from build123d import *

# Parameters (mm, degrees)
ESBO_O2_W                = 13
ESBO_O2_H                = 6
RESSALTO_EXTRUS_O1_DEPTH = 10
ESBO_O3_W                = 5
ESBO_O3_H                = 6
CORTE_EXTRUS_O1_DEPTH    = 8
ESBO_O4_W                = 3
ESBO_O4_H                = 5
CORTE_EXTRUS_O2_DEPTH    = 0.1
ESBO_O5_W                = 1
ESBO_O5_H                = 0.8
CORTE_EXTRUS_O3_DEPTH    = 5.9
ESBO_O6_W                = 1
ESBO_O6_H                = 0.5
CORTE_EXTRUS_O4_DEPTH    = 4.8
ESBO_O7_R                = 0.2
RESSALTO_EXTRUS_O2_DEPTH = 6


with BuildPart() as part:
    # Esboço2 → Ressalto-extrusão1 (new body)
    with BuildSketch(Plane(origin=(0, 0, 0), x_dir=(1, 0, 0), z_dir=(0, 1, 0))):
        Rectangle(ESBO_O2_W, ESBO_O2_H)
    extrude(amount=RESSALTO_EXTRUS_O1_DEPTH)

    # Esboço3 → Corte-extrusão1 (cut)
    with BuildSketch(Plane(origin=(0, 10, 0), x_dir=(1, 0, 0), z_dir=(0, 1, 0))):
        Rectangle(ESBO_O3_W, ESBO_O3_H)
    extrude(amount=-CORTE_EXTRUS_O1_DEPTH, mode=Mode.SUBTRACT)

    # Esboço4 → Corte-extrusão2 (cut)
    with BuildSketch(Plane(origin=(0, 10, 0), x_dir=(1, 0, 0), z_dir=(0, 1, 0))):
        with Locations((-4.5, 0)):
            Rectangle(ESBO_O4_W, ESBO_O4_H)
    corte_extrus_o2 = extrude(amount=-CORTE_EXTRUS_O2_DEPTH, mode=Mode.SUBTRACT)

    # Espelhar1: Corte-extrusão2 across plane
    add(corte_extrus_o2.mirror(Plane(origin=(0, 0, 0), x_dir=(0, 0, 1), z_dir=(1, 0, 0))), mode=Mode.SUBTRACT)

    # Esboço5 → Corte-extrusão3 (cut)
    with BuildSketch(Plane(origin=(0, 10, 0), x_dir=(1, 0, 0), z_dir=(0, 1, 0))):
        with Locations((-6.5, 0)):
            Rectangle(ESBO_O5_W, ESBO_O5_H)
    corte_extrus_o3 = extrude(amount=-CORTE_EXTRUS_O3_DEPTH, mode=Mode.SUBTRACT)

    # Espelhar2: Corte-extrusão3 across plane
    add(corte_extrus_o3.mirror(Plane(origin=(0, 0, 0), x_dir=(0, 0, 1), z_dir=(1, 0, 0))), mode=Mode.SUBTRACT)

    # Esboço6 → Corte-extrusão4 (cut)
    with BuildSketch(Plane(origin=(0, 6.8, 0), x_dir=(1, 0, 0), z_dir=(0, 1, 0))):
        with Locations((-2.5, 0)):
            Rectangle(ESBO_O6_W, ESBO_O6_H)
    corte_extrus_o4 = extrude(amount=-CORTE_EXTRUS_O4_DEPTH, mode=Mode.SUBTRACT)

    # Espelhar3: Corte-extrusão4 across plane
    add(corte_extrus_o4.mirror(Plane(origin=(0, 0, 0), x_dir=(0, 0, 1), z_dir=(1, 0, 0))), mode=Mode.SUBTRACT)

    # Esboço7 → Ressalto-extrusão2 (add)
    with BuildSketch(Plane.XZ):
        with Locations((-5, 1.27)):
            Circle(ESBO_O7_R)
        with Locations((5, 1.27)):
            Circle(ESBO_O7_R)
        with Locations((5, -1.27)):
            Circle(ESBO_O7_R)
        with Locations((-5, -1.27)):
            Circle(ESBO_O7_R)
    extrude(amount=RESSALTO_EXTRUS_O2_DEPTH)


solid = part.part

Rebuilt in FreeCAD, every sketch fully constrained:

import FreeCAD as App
import Part
import Sketcher
from FreeCAD import Vector
Q = App.Units.Quantity

doc = App.newDocument("Part")
body = doc.addObject("PartDesign::Body", "Body")

sketch1 = body.newObject("Sketcher::SketchObject", "Sketch")
sketch1.AttachmentSupport = (doc.getObject("XZ_Plane"), [""])
sketch1.MapMode = "FlatFace"
sketch1.addGeometry(Part.LineSegment(Vector(-6, -3, 0), Vector(-6, 3, 0)), False)
sketch1.addGeometry(Part.LineSegment(Vector(-6, 3, 0), Vector(6, 3, 0)), False)
sketch1.addGeometry(Part.LineSegment(Vector(6, 3, 0), Vector(6, -3, 0)), False)
sketch1.addGeometry(Part.LineSegment(Vector(6, -3, 0), Vector(-6, -3, 0)), False)
sketch1.addConstraint(Sketcher.Constraint("Coincident", 0, 2, 1, 1))
sketch1.addConstraint(Sketcher.Constraint("Coincident", 1, 2, 2, 1))
sketch1.addConstraint(Sketcher.Constraint("Coincident", 2, 2, 3, 1))
sketch1.addConstraint(Sketcher.Constraint("Coincident", 3, 2, 0, 1))
sketch1.addConstraint(Sketcher.Constraint("Vertical", 0))
sketch1.addConstraint(Sketcher.Constraint("Horizontal", 1))
sketch1.addConstraint(Sketcher.Constraint("Vertical", 2))
sketch1.addConstraint(Sketcher.Constraint("Horizontal", 3))
sketch1.addConstraint(Sketcher.Constraint("Symmetric", 0, 2, 2, 2, -1, 1))
sketch1.addConstraint(Sketcher.Constraint("DistanceX", 1, 1, 1, 2, Q("13 mm")))
sketch1.addConstraint(Sketcher.Constraint("DistanceY", 0, 1, 0, 2, Q("6 mm")))
pad1 = body.newObject("PartDesign::Pad", "Pad")
pad1.Profile = sketch1
pad1.Length = 10
pad1.Reversed = True

sketch2 = body.newObject("Sketcher::SketchObject", "Sketch001")
sketch2.AttachmentSupport = (doc.getObject("XZ_Plane"), [""])
sketch2.MapMode = "FlatFace"
sketch2.AttachmentOffset = App.Placement(Vector(0, 0, -10), App.Rotation())
sketch2.addGeometry(Part.LineSegment(Vector(-2, -3, 0), Vector(-2, 3, 0)), False)
sketch2.addGeometry(Part.LineSegment(Vector(-2, 3, 0), Vector(2, 3, 0)), False)
sketch2.addGeometry(Part.LineSegment(Vector(2, 3, 0), Vector(2, -3, 0)), False)
sketch2.addGeometry(Part.LineSegment(Vector(2, -3, 0), Vector(-2, -3, 0)), False)
sketch2.addConstraint(Sketcher.Constraint("Coincident", 0, 2, 1, 1))
sketch2.addConstraint(Sketcher.Constraint("Coincident", 1, 2, 2, 1))
sketch2.addConstraint(Sketcher.Constraint("Coincident", 2, 2, 3, 1))
sketch2.addConstraint(Sketcher.Constraint("Coincident", 3, 2, 0, 1))
sketch2.addConstraint(Sketcher.Constraint("Vertical", 0))
sketch2.addConstraint(Sketcher.Constraint("Horizontal", 1))
sketch2.addConstraint(Sketcher.Constraint("Vertical", 2))
sketch2.addConstraint(Sketcher.Constraint("Horizontal", 3))
sketch2.addConstraint(Sketcher.Constraint("Symmetric", 0, 2, 2, 2, -1, 1))
sketch2.addConstraint(Sketcher.Constraint("DistanceX", 1, 1, 1, 2, Q("5 mm")))
sketch2.addConstraint(Sketcher.Constraint("DistanceY", 0, 1, 0, 2, Q("6 mm")))
pocket1 = body.newObject("PartDesign::Pocket", "Pocket")
pocket1.Profile = sketch2
pocket1.Length = 8
pocket1.Reversed = True

sketch3 = body.newObject("Sketcher::SketchObject", "Sketch002")
sketch3.AttachmentSupport = (doc.getObject("XZ_Plane"), [""])
sketch3.MapMode = "FlatFace"
sketch3.AttachmentOffset = App.Placement(Vector(0, 0, -10), App.Rotation())
sketch3.addGeometry(Part.LineSegment(Vector(-6, -2.5, 0), Vector(-6, 2.5, 0)), False)
sketch3.addGeometry(Part.LineSegment(Vector(-6, 2.5, 0), Vector(-3, 2.5, 0)), False)
sketch3.addGeometry(Part.LineSegment(Vector(-3, 2.5, 0), Vector(-3, -2.5, 0)), False)
sketch3.addGeometry(Part.LineSegment(Vector(-3, -2.5, 0), Vector(-6, -2.5, 0)), False)
sketch3.addConstraint(Sketcher.Constraint("Coincident", 0, 2, 1, 1))
sketch3.addConstraint(Sketcher.Constraint("Coincident", 1, 2, 2, 1))
sketch3.addConstraint(Sketcher.Constraint("Coincident", 2, 2, 3, 1))
sketch3.addConstraint(Sketcher.Constraint("Coincident", 3, 2, 0, 1))
sketch3.addConstraint(Sketcher.Constraint("Vertical", 0))
sketch3.addConstraint(Sketcher.Constraint("Horizontal", 1))
sketch3.addConstraint(Sketcher.Constraint("Vertical", 2))
sketch3.addConstraint(Sketcher.Constraint("Horizontal", 3))
sketch3.addConstraint(Sketcher.Constraint("DistanceX", 1, 1, 1, 2, Q("3 mm")))
sketch3.addConstraint(Sketcher.Constraint("DistanceY", 0, 1, 0, 2, Q("5 mm")))
sketch3.addConstraint(Sketcher.Constraint("DistanceX", 0, 2, -1, 1, Q("6 mm")))
sketch3.addConstraint(Sketcher.Constraint("DistanceY", -1, 1, 0, 2, Q("2.5 mm")))
pocket2 = body.newObject("PartDesign::Pocket", "Pocket001")
pocket2.Profile = sketch3
pocket2.Length = 0.1
pocket2.Reversed = True
doc.recompute()

mirrored = body.newObject("PartDesign::Mirrored", "Mirrored")
mirrored.Originals = [pocket2]
mirrored.MirrorPlane = (doc.getObject("YZ_Plane"), [""])
body.Tip = mirrored

sketch4 = body.newObject("Sketcher::SketchObject", "Sketch003")
sketch4.AttachmentSupport = (doc.getObject("XZ_Plane"), [""])
sketch4.MapMode = "FlatFace"
sketch4.AttachmentOffset = App.Placement(Vector(0, 0, -10), App.Rotation())
sketch4.addGeometry(Part.LineSegment(Vector(-7, -0.4, 0), Vector(-7, 0.4, 0)), False)
sketch4.addGeometry(Part.LineSegment(Vector(-7, 0.4, 0), Vector(-6, 0.4, 0)), False)
sketch4.addGeometry(Part.LineSegment(Vector(-6, 0.4, 0), Vector(-6, -0.4, 0)), False)
sketch4.addGeometry(Part.LineSegment(Vector(-6, -0.4, 0), Vector(-7, -0.4, 0)), False)
sketch4.addConstraint(Sketcher.Constraint("Coincident", 0, 2, 1, 1))
sketch4.addConstraint(Sketcher.Constraint("Coincident", 1, 2, 2, 1))
sketch4.addConstraint(Sketcher.Constraint("Coincident", 2, 2, 3, 1))
sketch4.addConstraint(Sketcher.Constraint("Coincident", 3, 2, 0, 1))
sketch4.addConstraint(Sketcher.Constraint("Vertical", 0))
sketch4.addConstraint(Sketcher.Constraint("Horizontal", 1))
sketch4.addConstraint(Sketcher.Constraint("Vertical", 2))
sketch4.addConstraint(Sketcher.Constraint("Horizontal", 3))
sketch4.addConstraint(Sketcher.Constraint("DistanceX", 1, 1, 1, 2, Q("1 mm")))
sketch4.addConstraint(Sketcher.Constraint("DistanceY", 0, 1, 0, 2, Q("0.8 mm")))
sketch4.addConstraint(Sketcher.Constraint("DistanceX", 0, 2, -1, 1, Q("7 mm")))
sketch4.addConstraint(Sketcher.Constraint("DistanceY", -1, 1, 0, 2, Q("0.4 mm")))
pocket3 = body.newObject("PartDesign::Pocket", "Pocket002")
pocket3.Profile = sketch4
pocket3.Length = 5.9
pocket3.Reversed = True
doc.recompute()

mirrored2 = body.newObject("PartDesign::Mirrored", "Mirrored001")
mirrored2.Originals = [pocket3]
mirrored2.MirrorPlane = (doc.getObject("YZ_Plane"), [""])
body.Tip = mirrored2

sketch5 = body.newObject("Sketcher::SketchObject", "Sketch004")
sketch5.AttachmentSupport = (doc.getObject("XZ_Plane"), [""])
sketch5.MapMode = "FlatFace"
sketch5.AttachmentOffset = App.Placement(Vector(0, 0, -6.8), App.Rotation())
sketch5.addGeometry(Part.LineSegment(Vector(-3, -0.2, 0), Vector(-3, 0.2, 0)), False)
sketch5.addGeometry(Part.LineSegment(Vector(-3, 0.2, 0), Vector(-2, 0.2, 0)), False)
sketch5.addGeometry(Part.LineSegment(Vector(-2, 0.2, 0), Vector(-2, -0.2, 0)), False)
sketch5.addGeometry(Part.LineSegment(Vector(-2, -0.2, 0), Vector(-3, -0.2, 0)), False)
sketch5.addConstraint(Sketcher.Constraint("Coincident", 0, 2, 1, 1))
sketch5.addConstraint(Sketcher.Constraint("Coincident", 1, 2, 2, 1))
sketch5.addConstraint(Sketcher.Constraint("Coincident", 2, 2, 3, 1))
sketch5.addConstraint(Sketcher.Constraint("Coincident", 3, 2, 0, 1))
sketch5.addConstraint(Sketcher.Constraint("Vertical", 0))
sketch5.addConstraint(Sketcher.Constraint("Horizontal", 1))
sketch5.addConstraint(Sketcher.Constraint("Vertical", 2))
sketch5.addConstraint(Sketcher.Constraint("Horizontal", 3))
sketch5.addConstraint(Sketcher.Constraint("DistanceX", 1, 1, 1, 2, Q("1 mm")))
sketch5.addConstraint(Sketcher.Constraint("DistanceY", 0, 1, 0, 2, Q("0.5 mm")))
sketch5.addConstraint(Sketcher.Constraint("DistanceX", 0, 2, -1, 1, Q("3 mm")))
sketch5.addConstraint(Sketcher.Constraint("DistanceY", -1, 1, 0, 2, Q("0.25 mm")))
pocket4 = body.newObject("PartDesign::Pocket", "Pocket003")
pocket4.Profile = sketch5
pocket4.Length = 4.8
pocket4.Reversed = True
doc.recompute()

mirrored3 = body.newObject("PartDesign::Mirrored", "Mirrored002")
mirrored3.Originals = [pocket4]
mirrored3.MirrorPlane = (doc.getObject("YZ_Plane"), [""])
body.Tip = mirrored3

sketch6 = body.newObject("Sketcher::SketchObject", "Sketch005")
sketch6.AttachmentSupport = (doc.getObject("XZ_Plane"), [""])
sketch6.MapMode = "FlatFace"
sketch6.addGeometry(Part.Circle(Vector(-5, 1.27, 0), Vector(0, 0, 1), 0.2), False)
sketch6.addGeometry(Part.Circle(Vector(5, 1.27, 0), Vector(0, 0, 1), 0.2), False)
sketch6.addGeometry(Part.Circle(Vector(5, -1.27, 0), Vector(0, 0, 1), 0.2), False)
sketch6.addGeometry(Part.Circle(Vector(-5, -1.27, 0), Vector(0, 0, 1), 0.2), False)
sketch6.addConstraint(Sketcher.Constraint("Equal", 0, 1))
sketch6.addConstraint(Sketcher.Constraint("Equal", 1, 2))
sketch6.addConstraint(Sketcher.Constraint("Equal", 2, 3))
sketch6.addConstraint(Sketcher.Constraint("Symmetric", 0, 3, 2, 3, -1, 1))
sketch6.addConstraint(Sketcher.Constraint("Symmetric", 1, 3, 3, 3, -1, 1))
sketch6.addConstraint(Sketcher.Constraint("Symmetric", 0, 3, 1, 3, -2))
sketch6.addConstraint(Sketcher.Constraint("Diameter", 0, Q("0.4 mm")))
sketch6.addConstraint(Sketcher.Constraint("DistanceX", 0, 3, -1, 1, Q("5 mm")))
sketch6.addConstraint(Sketcher.Constraint("DistanceY", -1, 1, 0, 3, Q("1.27 mm")))
pad2 = body.newObject("PartDesign::Pad", "Pad001")
pad2.Profile = sketch6
pad2.Length = 6

doc.recompute()
